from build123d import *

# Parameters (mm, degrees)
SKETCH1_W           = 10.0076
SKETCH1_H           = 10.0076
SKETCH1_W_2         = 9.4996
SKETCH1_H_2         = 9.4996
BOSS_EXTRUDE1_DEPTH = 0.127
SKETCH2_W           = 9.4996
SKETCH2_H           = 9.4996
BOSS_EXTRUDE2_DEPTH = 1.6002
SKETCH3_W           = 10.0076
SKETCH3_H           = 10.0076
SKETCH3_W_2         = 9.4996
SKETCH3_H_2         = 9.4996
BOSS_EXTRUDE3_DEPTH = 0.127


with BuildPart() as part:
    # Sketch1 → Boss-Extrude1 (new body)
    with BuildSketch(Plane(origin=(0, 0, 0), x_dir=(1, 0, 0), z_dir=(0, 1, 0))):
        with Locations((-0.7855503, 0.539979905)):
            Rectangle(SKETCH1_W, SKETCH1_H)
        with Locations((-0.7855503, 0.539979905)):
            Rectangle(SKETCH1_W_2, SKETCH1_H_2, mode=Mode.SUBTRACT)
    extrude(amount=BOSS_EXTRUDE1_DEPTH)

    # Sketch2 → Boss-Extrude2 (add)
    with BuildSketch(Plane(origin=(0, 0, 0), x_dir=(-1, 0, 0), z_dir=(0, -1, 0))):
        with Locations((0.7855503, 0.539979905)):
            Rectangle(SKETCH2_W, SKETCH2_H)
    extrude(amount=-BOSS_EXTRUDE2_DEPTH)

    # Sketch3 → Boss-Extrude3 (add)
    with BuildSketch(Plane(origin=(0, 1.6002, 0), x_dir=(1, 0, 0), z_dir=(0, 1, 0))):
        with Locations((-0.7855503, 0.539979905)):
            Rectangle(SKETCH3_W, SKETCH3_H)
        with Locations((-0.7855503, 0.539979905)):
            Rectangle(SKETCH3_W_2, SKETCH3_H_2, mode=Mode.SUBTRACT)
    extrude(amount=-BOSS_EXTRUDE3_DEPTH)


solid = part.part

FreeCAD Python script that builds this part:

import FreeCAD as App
import Part
import Sketcher
from FreeCAD import Vector
Q = App.Units.Quantity

doc = App.newDocument("Part")
body = doc.addObject("PartDesign::Body", "Body")

sketch1 = doc.addObject("Sketcher::SketchObject", "Sketch")
body.addObject(sketch1)
sketch1.AttachmentSupport = (doc.XZ_Plane, [""])
sketch1.MapMode = "FlatFace"
sketch1.addGeometry(Part.LineSegment(Vector(-6, -6, 0), Vector(-6, 4, 0)), False)
sketch1.addGeometry(Part.LineSegment(Vector(-6, 4, 0), Vector(4, 4, 0)), False)
sketch1.addGeometry(Part.LineSegment(Vector(4, 4, 0), Vector(4, -6, 0)), False)
sketch1.addGeometry(Part.LineSegment(Vector(4, -6, 0), Vector(-6, -6, 0)), False)
sketch1.addGeometry(Part.LineSegment(Vector(4, 4, 0), Vector(-6, 4, 0)), False)
sketch1.addGeometry(Part.LineSegment(Vector(-6, 4, 0), Vector(-6, -5, 0)), False)
sketch1.addGeometry(Part.LineSegment(Vector(-6, -5, 0), Vector(4, -5, 0)), False)
sketch1.addGeometry(Part.LineSegment(Vector(4, -5, 0), Vector(4, 4, 0)), False)
sketch1.addConstraint(Sketcher.Constraint("Coincident", 0, 2, 1, 1))
sketch1.addConstraint(Sketcher.Constraint("Coincident", 1, 2, 2, 1))
sketch1.addConstraint(Sketcher.Constraint("Coincident", 2, 2, 3, 1))
sketch1.addConstraint(Sketcher.Constraint("Coincident", 3, 2, 0, 1))
sketch1.addConstraint(Sketcher.Constraint("Coincident", 4, 2, 5, 1))
sketch1.addConstraint(Sketcher.Constraint("Coincident", 5, 2, 6, 1))
sketch1.addConstraint(Sketcher.Constraint("Coincident", 6, 2, 7, 1))
sketch1.addConstraint(Sketcher.Constraint("Coincident", 7, 2, 4, 1))
sketch1.addConstraint(Sketcher.Constraint("Vertical", 0))
sketch1.addConstraint(Sketcher.Constraint("Horizontal", 1))
sketch1.addConstraint(Sketcher.Constraint("Vertical", 2))
sketch1.addConstraint(Sketcher.Constraint("Horizontal", 3))
sketch1.addConstraint(Sketcher.Constraint("Horizontal", 4))
sketch1.addConstraint(Sketcher.Constraint("Vertical", 5))
sketch1.addConstraint(Sketcher.Constraint("Horizontal", 6))
sketch1.addConstraint(Sketcher.Constraint("Vertical", 7))
sketch1.addConstraint(Sketcher.Constraint("Equal", 3, 0))
sketch1.addConstraint(Sketcher.Constraint("Equal", 6, 5))
sketch1.addConstraint(Sketcher.Constraint("DistanceX", 1, 1, 1, 2, Q("0.394 in")))
sketch1.addConstraint(Sketcher.Constraint("DistanceX", 4, 2, 4, 1, Q("0.374 in")))
sketch1.addConstraint(Sketcher.Constraint("DistanceX", 0, 2, 4, 2, Q("0.01 in")))
sketch1.addConstraint(Sketcher.Constraint("DistanceY", 4, 2, 0, 2, Q("0.01 in")))
sketch1.addConstraint(Sketcher.Constraint("DistanceX", 0, 2, -1, 1, Q("5.78935 mm")))
sketch1.addConstraint(Sketcher.Constraint("DistanceY", -1, 1, 0, 2, Q("4.46382 mm")))
pad1 = doc.addObject("PartDesign::Pad", "Pad")
body.addObject(pad1)
pad1.Profile = sketch1
pad1.Length = Q("0.005 in")
pad1.Reversed = True

sketch2 = doc.addObject("Sketcher::SketchObject", "Sketch001")
body.addObject(sketch2)
sketch2.AttachmentSupport = (doc.XZ_Plane, [""])
sketch2.MapMode = "FlatFace"
sketch2.addGeometry(Part.LineSegment(Vector(4, -5, 0), Vector(4, 4, 0)), False)
sketch2.addGeometry(Part.LineSegment(Vector(4, 4, 0), Vector(-6, 4, 0)), False)
sketch2.addGeometry(Part.LineSegment(Vector(-6, 4, 0), Vector(-6, -5, 0)), False)
sketch2.addGeometry(Part.LineSegment(Vector(-6, -5, 0), Vector(4, -5, 0)), False)
sketch2.addConstraint(Sketcher.Constraint("Coincident", 0, 2, 1, 1))
sketch2.addConstraint(Sketcher.Constraint("Coincident", 1, 2, 2, 1))
sketch2.addConstraint(Sketcher.Constraint("Coincident", 2, 2, 3, 1))
sketch2.addConstraint(Sketcher.Constraint("Coincident", 3, 2, 0, 1))
sketch2.addConstraint(Sketcher.Constraint("Vertical", 0))
sketch2.addConstraint(Sketcher.Constraint("Horizontal", 1))
sketch2.addConstraint(Sketcher.Constraint("Vertical", 2))
sketch2.addConstraint(Sketcher.Constraint("Horizontal", 3))
sketch2.addConstraint(Sketcher.Constraint("Equal", 3, 0))
sketch2.addConstraint(Sketcher.Constraint("DistanceX", 1, 2, 1, 1, Q("0.374 in")))
sketch2.addConstraint(Sketcher.Constraint("DistanceX", -1, 1, 0, 2, Q("3.96425 mm")))
sketch2.addConstraint(Sketcher.Constraint("DistanceY", -1, 1, 0, 2, Q("4.20982 mm")))
pad2 = doc.addObject("PartDesign::Pad", "Pad001")
body.addObject(pad2)
pad2.Profile = sketch2
pad2.Length = Q("0.063 in")
pad2.Reversed = True

sketch3 = doc.addObject("Sketcher::SketchObject", "Sketch002")
body.addObject(sketch3)
sketch3.AttachmentSupport = (doc.XZ_Plane, [""])
sketch3.MapMode = "FlatFace"
sketch3.AttachmentOffset = App.Placement(Vector(0, 0, -0.063 * 25.4), App.Rotation())
sketch3.addGeometry(Part.LineSegment(Vector(-6, -6, 0), Vector(-6, 4, 0)), False)
sketch3.addGeometry(Part.LineSegment(Vector(-6, 4, 0), Vector(4, 4, 0)), False)
sketch3.addGeometry(Part.LineSegment(Vector(4, 4, 0), Vector(4, -6, 0)), False)
sketch3.addGeometry(Part.LineSegment(Vector(4, -6, 0), Vector(-6, -6, 0)), False)
sketch3.addGeometry(Part.LineSegment(Vector(4, 4, 0), Vector(-6, 4, 0)), False)
sketch3.addGeometry(Part.LineSegment(Vector(-6, 4, 0), Vector(-6, -5, 0)), False)
sketch3.addGeometry(Part.LineSegment(Vector(-6, -5, 0), Vector(4, -5, 0)), False)
sketch3.addGeometry(Part.LineSegment(Vector(4, -5, 0), Vector(4, 4, 0)), False)
sketch3.addConstraint(Sketcher.Constraint("Coincident", 0, 2, 1, 1))
sketch3.addConstraint(Sketcher.Constraint("Coincident", 1, 2, 2, 1))
sketch3.addConstraint(Sketcher.Constraint("Coincident", 2, 2, 3, 1))
sketch3.addConstraint(Sketcher.Constraint("Coincident", 3, 2, 0, 1))
sketch3.addConstraint(Sketcher.Constraint("Coincident", 4, 2, 5, 1))
sketch3.addConstraint(Sketcher.Constraint("Coincident", 5, 2, 6, 1))
sketch3.addConstraint(Sketcher.Constraint("Coincident", 6, 2, 7, 1))
sketch3.addConstraint(Sketcher.Constraint("Coincident", 7, 2, 4, 1))
sketch3.addConstraint(Sketcher.Constraint("Vertical", 0))
sketch3.addConstraint(Sketcher.Constraint("Horizontal", 1))
sketch3.addConstraint(Sketcher.Constraint("Vertical", 2))
sketch3.addConstraint(Sketcher.Constraint("Horizontal", 3))
sketch3.addConstraint(Sketcher.Constraint("Horizontal", 4))
sketch3.addConstraint(Sketcher.Constraint("Vertical", 5))
sketch3.addConstraint(Sketcher.Constraint("Horizontal", 6))
sketch3.addConstraint(Sketcher.Constraint("Vertical", 7))
sketch3.addConstraint(Sketcher.Constraint("Equal", 3, 0))
sketch3.addConstraint(Sketcher.Constraint("Equal", 6, 5))
sketch3.addConstraint(Sketcher.Constraint("DistanceX", 1, 1, 1, 2, Q("0.394 in")))
sketch3.addConstraint(Sketcher.Constraint("DistanceX", 4, 2, 4, 1, Q("0.374 in")))
sketch3.addConstraint(Sketcher.Constraint("DistanceX", 0, 2, 4, 2, Q("0.01 in")))
sketch3.addConstraint(Sketcher.Constraint("DistanceY", 4, 2, 0, 2, Q("0.01 in")))
sketch3.addConstraint(Sketcher.Constraint("DistanceX", 0, 2, -1, 1, Q("5.78935 mm")))
sketch3.addConstraint(Sketcher.Constraint("DistanceY", -1, 1, 0, 2, Q("4.46382 mm")))
pad3 = doc.addObject("PartDesign::Pad", "Pad002")
body.addObject(pad3)
pad3.Profile = sketch3
pad3.Length = Q("0.005 in")

doc.recompute()
